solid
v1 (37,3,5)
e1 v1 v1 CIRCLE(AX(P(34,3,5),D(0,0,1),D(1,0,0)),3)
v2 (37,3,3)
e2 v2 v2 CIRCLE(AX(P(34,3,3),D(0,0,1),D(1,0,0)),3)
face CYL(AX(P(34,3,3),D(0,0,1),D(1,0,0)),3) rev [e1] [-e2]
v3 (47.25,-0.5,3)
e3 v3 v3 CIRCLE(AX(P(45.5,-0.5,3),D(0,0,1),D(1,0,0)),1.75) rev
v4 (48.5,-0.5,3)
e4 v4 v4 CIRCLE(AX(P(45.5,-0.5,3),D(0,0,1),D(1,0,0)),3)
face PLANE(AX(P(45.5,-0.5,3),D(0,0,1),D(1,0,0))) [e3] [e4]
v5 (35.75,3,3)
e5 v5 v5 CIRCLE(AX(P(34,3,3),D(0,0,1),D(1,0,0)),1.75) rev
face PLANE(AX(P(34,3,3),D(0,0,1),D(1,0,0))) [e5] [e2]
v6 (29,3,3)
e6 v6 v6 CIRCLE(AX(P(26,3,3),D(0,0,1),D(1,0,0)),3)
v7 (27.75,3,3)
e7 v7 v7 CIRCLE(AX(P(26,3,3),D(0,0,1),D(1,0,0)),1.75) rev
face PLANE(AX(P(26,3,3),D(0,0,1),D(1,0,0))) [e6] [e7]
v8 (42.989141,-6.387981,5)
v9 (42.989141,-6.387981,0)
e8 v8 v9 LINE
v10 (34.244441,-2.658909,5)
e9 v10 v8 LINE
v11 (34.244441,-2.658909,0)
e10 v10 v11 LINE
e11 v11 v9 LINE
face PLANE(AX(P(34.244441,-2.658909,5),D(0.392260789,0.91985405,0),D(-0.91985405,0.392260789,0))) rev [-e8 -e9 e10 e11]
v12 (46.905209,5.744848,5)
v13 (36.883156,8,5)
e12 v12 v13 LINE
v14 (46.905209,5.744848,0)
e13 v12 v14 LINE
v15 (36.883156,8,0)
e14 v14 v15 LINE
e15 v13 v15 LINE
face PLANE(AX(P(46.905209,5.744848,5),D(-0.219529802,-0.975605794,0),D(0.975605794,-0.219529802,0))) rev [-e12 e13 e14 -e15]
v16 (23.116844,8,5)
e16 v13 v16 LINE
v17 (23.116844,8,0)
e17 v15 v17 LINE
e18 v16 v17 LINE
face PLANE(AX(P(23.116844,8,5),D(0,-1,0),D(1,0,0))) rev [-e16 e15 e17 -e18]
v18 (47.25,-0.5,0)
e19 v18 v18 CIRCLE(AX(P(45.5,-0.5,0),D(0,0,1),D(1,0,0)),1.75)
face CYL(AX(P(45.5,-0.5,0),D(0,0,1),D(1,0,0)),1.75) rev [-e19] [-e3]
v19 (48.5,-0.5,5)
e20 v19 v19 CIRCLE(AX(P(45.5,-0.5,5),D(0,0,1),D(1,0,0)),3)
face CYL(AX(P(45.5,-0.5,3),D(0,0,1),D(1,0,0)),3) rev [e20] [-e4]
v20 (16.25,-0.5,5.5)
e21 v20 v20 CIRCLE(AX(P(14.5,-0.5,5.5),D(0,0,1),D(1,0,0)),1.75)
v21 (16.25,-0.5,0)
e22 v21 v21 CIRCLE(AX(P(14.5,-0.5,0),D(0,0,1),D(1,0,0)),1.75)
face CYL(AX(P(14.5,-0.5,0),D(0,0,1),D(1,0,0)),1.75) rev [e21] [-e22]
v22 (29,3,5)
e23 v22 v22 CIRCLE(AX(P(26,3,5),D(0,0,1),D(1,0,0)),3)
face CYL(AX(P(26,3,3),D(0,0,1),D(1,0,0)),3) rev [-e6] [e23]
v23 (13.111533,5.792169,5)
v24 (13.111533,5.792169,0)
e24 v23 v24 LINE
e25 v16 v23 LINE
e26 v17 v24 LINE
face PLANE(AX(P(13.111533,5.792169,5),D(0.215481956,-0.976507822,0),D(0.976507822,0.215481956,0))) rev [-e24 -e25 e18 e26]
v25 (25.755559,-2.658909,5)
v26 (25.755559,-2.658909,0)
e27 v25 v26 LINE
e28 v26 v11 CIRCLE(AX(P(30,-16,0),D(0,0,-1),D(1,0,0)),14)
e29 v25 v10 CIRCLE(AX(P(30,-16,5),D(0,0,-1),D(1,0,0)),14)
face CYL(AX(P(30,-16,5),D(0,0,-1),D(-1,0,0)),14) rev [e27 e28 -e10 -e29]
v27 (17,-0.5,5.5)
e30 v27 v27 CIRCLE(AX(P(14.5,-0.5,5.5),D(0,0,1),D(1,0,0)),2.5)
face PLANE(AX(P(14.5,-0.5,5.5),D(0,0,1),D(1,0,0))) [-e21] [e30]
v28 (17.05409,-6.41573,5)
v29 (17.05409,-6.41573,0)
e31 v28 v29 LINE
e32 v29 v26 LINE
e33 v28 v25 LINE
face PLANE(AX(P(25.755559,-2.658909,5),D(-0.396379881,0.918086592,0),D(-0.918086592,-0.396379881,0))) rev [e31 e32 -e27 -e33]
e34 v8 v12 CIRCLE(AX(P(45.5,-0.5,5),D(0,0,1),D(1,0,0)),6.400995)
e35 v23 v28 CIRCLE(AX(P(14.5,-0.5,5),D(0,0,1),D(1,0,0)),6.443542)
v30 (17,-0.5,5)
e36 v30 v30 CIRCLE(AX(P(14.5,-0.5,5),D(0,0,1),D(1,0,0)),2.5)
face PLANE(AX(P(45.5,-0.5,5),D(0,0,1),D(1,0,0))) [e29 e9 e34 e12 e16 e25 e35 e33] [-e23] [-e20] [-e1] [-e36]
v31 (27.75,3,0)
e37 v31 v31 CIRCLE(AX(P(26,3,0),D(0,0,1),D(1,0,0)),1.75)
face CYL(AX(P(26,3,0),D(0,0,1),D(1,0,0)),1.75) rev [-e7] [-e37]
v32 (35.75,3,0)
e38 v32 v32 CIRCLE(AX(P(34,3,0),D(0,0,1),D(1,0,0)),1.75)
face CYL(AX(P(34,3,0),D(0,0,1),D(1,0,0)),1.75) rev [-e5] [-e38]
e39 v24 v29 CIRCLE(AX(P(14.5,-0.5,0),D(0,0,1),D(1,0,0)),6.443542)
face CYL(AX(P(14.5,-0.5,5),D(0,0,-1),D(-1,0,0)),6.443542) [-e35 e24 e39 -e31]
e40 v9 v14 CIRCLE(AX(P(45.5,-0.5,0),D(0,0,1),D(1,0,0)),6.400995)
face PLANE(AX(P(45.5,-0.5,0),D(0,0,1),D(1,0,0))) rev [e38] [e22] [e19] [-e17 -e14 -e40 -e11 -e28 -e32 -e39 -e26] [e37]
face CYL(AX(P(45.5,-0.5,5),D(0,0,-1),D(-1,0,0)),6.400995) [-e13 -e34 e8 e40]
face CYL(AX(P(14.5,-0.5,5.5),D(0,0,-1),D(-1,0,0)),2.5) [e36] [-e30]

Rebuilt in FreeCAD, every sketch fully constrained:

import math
import FreeCAD as App
import Part
import Sketcher

doc = App.newDocument("Part")
params = doc.addObject("Spreadsheet::Sheet", "Params")
for row, (alias, value) in enumerate([
    ("sketch1_radius", "14 mm"),
    ("pad1_length", "5 mm"),
    ("sketch2_diameter", "3.5 mm"),
    ("sketch3_diameter", "5 mm"),
    ("sketch3_diameter2", "3.5 mm"),
    ("pad2_length", "0.5 mm"),
    ("sketch4_diameter", "6 mm"),
    ("pocket2_length", "2 mm"),
], start=1):
    params.set(f"A{row}", alias)
    params.set(f"B{row}", "=" + value)
    params.setAlias(f"B{row}", alias)

body = doc.addObject("PartDesign::Body", "Body")

# Sketch on XY plane
sketch1 = body.newObject("Sketcher::SketchObject", "Sketch")
sketch1.AttachmentSupport = (doc.getObject("XY_Plane"), [""])
sketch1.MapMode = "FlatFace"
sketch1.addGeometry(Part.LineSegment(App.Vector(37, 8, 0), App.Vector(23, 8, 0)), False)
sketch1.addGeometry(Part.LineSegment(App.Vector(23, 8, 0), App.Vector(13, 6, 0)), False)
sketch1.addGeometry(Part.ArcOfCircle(Part.Circle(App.Vector(14, 0, 0), App.Vector(0, 0, 1), 6), math.radians(102), math.radians(293)), False)
sketch1.addGeometry(Part.LineSegment(App.Vector(17, -6, 0), App.Vector(26, -3, 0)), False)
sketch1.addGeometry(Part.ArcOfCircle(Part.Circle(App.Vector(30, -16, 0), App.Vector(0, 0, 1), 14), math.radians(72), math.radians(108)), False)
sketch1.addGeometry(Part.LineSegment(App.Vector(34, -3, 0), App.Vector(43, -6, 0)), False)
sketch1.addGeometry(Part.ArcOfCircle(Part.Circle(App.Vector(46, 0, 0), App.Vector(0, 0, 1), 6), math.radians(-113), math.radians(77)), False)
sketch1.addGeometry(Part.LineSegment(App.Vector(47, 6, 0), App.Vector(37, 8, 0)), False)
sketch1.addConstraint(Sketcher.Constraint("Coincident", 0, 2, 1, 1))
sketch1.addConstraint(Sketcher.Constraint("Tangent", 1, 2, 2, 1))
sketch1.addConstraint(Sketcher.Constraint("Tangent", 2, 2, 3, 1))
sketch1.addConstraint(Sketcher.Constraint("Coincident", 3, 2, 4, 2))
sketch1.addConstraint(Sketcher.Constraint("Coincident", 4, 1, 5, 1))
sketch1.addConstraint(Sketcher.Constraint("Tangent", 5, 2, 6, 1))
sketch1.addConstraint(Sketcher.Constraint("Tangent", 6, 2, 7, 1))
sketch1.addConstraint(Sketcher.Constraint("Coincident", 7, 2, 0, 1))
sketch1.addConstraint(Sketcher.Constraint("Horizontal", 0))
sketch1.addConstraint(Sketcher.Constraint("Horizontal", 2, 3, 6, 3))
sketch1.addConstraint(Sketcher.Constraint("Horizontal", 3, 2, 4, 1))
sketch1.addConstraint(Sketcher.Constraint("Radius", 4, 14.0))
sketch1.addConstraint(Sketcher.Constraint("DistanceX", -1, 1, 4, 3, 30.0))
sketch1.addConstraint(Sketcher.Constraint("DistanceY", 4, 3, -1, 1, 16.0))
sketch1.addConstraint(Sketcher.Constraint("DistanceY", -1, 1, 0, 2, 8.0))
sketch1.addConstraint(Sketcher.Constraint("DistanceX", 2, 3, 6, 3, 31.0))
sketch1.addConstraint(Sketcher.Constraint("DistanceX", -1, 1, 2, 3, 14.5))
sketch1.addConstraint(Sketcher.Constraint("DistanceY", 2, 3, -1, 1, 0.5))
sketch1.addConstraint(Sketcher.Constraint("Radius", 2, 6.443542))
sketch1.addConstraint(Sketcher.Constraint("Radius", 6, 6.400995))
sketch1.addConstraint(Sketcher.Constraint("DistanceY", 2, 2, 1, 2, 12.207899))
sketch1.addConstraint(Sketcher.Constraint("DistanceX", 4, 1, 5, 2, 8.744699))
sketch1.addConstraint(Sketcher.Constraint("DistanceX", 0, 2, 0, 1, 13.766312))
sketch1.setExpression("Constraints[11]", "Params.sketch1_radius")
pad1 = body.newObject("PartDesign::Pad", "Pad")
pad1.Profile = sketch1
pad1.setExpression("Length", "Params.pad1_length")

# Sketch on XY plane
sketch2 = body.newObject("Sketcher::SketchObject", "Sketch001")
sketch2.AttachmentSupport = (doc.getObject("XY_Plane"), [""])
sketch2.MapMode = "FlatFace"
sketch2.AttachmentOffset = App.Placement(App.Vector(0, 0, 5), App.Rotation())
sketch2.addGeometry(Part.Circle(App.Vector(45.5, -0.5, 0), App.Vector(0, 0, 1), 1.8), False)
sketch2.addGeometry(Part.Circle(App.Vector(14.5, -0.5, 0), App.Vector(0, 0, 1), 1.8), False)
sketch2.addGeometry(Part.Circle(App.Vector(26, 3, 0), App.Vector(0, 0, 1), 1.8), False)
sketch2.addGeometry(Part.Circle(App.Vector(34, 3, 0), App.Vector(0, 0, 1), 1.8), False)
sketch2.addConstraint(Sketcher.Constraint("Equal", 0, 1))
sketch2.addConstraint(Sketcher.Constraint("Equal", 1, 2))
sketch2.addConstraint(Sketcher.Constraint("Equal", 2, 3))
sketch2.addConstraint(Sketcher.Constraint("Horizontal", 0, 3, 1, 3))
sketch2.addConstraint(Sketcher.Constraint("Horizontal", 2, 3, 3, 3))
sketch2.addConstraint(Sketcher.Constraint("Diameter", 0, 3.5))
sketch2.addConstraint(Sketcher.Constraint("DistanceX", -1, 1, 2, 3, 26.0))
sketch2.addConstraint(Sketcher.Constraint("DistanceY", -1, 1, 2, 3, 3.0))
sketch2.addConstraint(Sketcher.Constraint("DistanceX", -1, 1, 3, 3, 34.0))
sketch2.addConstraint(Sketcher.Constraint("DistanceX", 1, 3, 0, 3, 31.0))
sketch2.addConstraint(Sketcher.Constraint("DistanceX", -1, 1, 0, 3, 45.5))
sketch2.addConstraint(Sketcher.Constraint("DistanceY", 0, 3, -1, 1, 0.5))
sketch2.setExpression("Constraints[5]", "Params.sketch2_diameter")
pocket1 = body.newObject("PartDesign::Pocket", "Pocket")
pocket1.Profile = sketch2
pocket1.Type = "ThroughAll"
pocket1.Midplane = True

# Sketch on XY plane
sketch3 = body.newObject("Sketcher::SketchObject", "Sketch002")
sketch3.AttachmentSupport = (doc.getObject("XY_Plane"), [""])
sketch3.MapMode = "FlatFace"
sketch3.AttachmentOffset = App.Placement(App.Vector(0, 0, 5.5), App.Rotation())
sketch3.addGeometry(Part.Circle(App.Vector(14.5, -0.5, 0), App.Vector(0, 0, 1), 2.5), False)
sketch3.addGeometry(Part.Circle(App.Vector(14.5, -0.5, 0), App.Vector(0, 0, 1), 1.8), False)
sketch3.addConstraint(Sketcher.Constraint("Coincident", 1, 3, 0, 3))
sketch3.addConstraint(Sketcher.Constraint("Diameter", 0, 5.0))
sketch3.addConstraint(Sketcher.Constraint("Diameter", 1, 3.5))
sketch3.addConstraint(Sketcher.Constraint("DistanceX", -1, 1, 0, 3, 14.5))
sketch3.addConstraint(Sketcher.Constraint("DistanceY", 0, 3, -1, 1, 0.5))
sketch3.setExpression("Constraints[1]", "Params.sketch3_diameter")
sketch3.setExpression("Constraints[2]", "Params.sketch3_diameter2")
pad2 = body.newObject("PartDesign::Pad", "Pad001")
pad2.Profile = sketch3
pad2.setExpression("Length", "Params.pad2_length")
pad2.Reversed = True

# Sketch on XY plane
sketch4 = body.newObject("Sketcher::SketchObject", "Sketch003")
sketch4.AttachmentSupport = (doc.getObject("XY_Plane"), [""])
sketch4.MapMode = "FlatFace"
sketch4.AttachmentOffset = App.Placement(App.Vector(0, 0, 5), App.Rotation())
sketch4.addGeometry(Part.Circle(App.Vector(26, 3, 0), App.Vector(0, 0, 1), 3), False)
sketch4.addGeometry(Part.Circle(App.Vector(34, 3, 0), App.Vector(0, 0, 1), 3), False)
sketch4.addGeometry(Part.Circle(App.Vector(45.5, -0.5, 0), App.Vector(0, 0, 1), 3), False)
sketch4.addConstraint(Sketcher.Constraint("Equal", 0, 1))
sketch4.addConstraint(Sketcher.Constraint("Equal", 1, 2))
sketch4.addConstraint(Sketcher.Constraint("Horizontal", 0, 3, 1, 3))
sketch4.addConstraint(Sketcher.Constraint("Diameter", 0, 6.0))
sketch4.addConstraint(Sketcher.Constraint("DistanceX", -1, 1, 0, 3, 26.0))
sketch4.addConstraint(Sketcher.Constraint("DistanceY", -1, 1, 0, 3, 3.0))
sketch4.addConstraint(Sketcher.Constraint("DistanceX", -1, 1, 1, 3, 34.0))
sketch4.addConstraint(Sketcher.Constraint("DistanceX", -1, 1, 2, 3, 45.5))
sketch4.addConstraint(Sketcher.Constraint("DistanceY", 2, 3, -1, 1, 0.5))
sketch4.setExpression("Constraints[3]", "Params.sketch4_diameter")
pocket2 = body.newObject("PartDesign::Pocket", "Pocket001")
pocket2.Profile = sketch4
pocket2.setExpression("Length", "Params.pocket2_length")

doc.recompute()
